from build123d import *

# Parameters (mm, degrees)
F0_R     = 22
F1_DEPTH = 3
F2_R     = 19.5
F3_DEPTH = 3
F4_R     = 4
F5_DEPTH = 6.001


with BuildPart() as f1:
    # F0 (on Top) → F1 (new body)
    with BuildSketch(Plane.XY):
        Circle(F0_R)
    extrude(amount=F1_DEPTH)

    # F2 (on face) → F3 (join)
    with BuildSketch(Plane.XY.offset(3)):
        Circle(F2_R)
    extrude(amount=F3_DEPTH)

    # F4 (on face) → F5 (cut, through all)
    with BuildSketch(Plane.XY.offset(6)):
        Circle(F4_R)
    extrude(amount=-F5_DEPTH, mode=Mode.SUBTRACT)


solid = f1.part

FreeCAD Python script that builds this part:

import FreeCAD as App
import Part
import Sketcher

V = App.Vector

doc = App.newDocument("Part")
body = doc.addObject("PartDesign::Body", "Body")

# Sketch on XY plane
sketch1 = doc.addObject("Sketcher::SketchObject", "Sketch")
body.addObject(sketch1)
sketch1.AttachmentSupport = (doc.XY_Plane, [""])
sketch1.MapMode = "FlatFace"
sketch1.addGeometry(Part.Circle(V(0, 0, 0), V(0, 0, 1), 22), False)
sketch1.addConstraint(Sketcher.Constraint("Coincident", 0, 3, -1, 1))
sketch1.addConstraint(Sketcher.Constraint("Diameter", 0, 44.0))
pad1 = doc.addObject("PartDesign::Pad", "Pad")
body.addObject(pad1)
pad1.Profile = sketch1
pad1.Length = 3

# Sketch on XY plane
sketch2 = doc.addObject("Sketcher::SketchObject", "Sketch001")
body.addObject(sketch2)
sketch2.AttachmentSupport = (doc.XY_Plane, [""])
sketch2.MapMode = "FlatFace"
sketch2.AttachmentOffset = App.Placement(V(0, 0, 3), App.Rotation())
sketch2.addGeometry(Part.Circle(V(0, 0, 0), V(0, 0, 1), 20), False)
sketch2.addConstraint(Sketcher.Constraint("Coincident", 0, 3, -1, 1))
sketch2.addConstraint(Sketcher.Constraint("Diameter", 0, 39.0))
pad2 = doc.addObject("PartDesign::Pad", "Pad001")
body.addObject(pad2)
pad2.Profile = sketch2
pad2.Length = 3

# Sketch on XY plane
sketch3 = doc.addObject("Sketcher::SketchObject", "Sketch002")
body.addObject(sketch3)
sketch3.AttachmentSupport = (doc.XY_Plane, [""])
sketch3.MapMode = "FlatFace"
sketch3.AttachmentOffset = App.Placement(V(0, 0, 6), App.Rotation())
sketch3.addGeometry(Part.Circle(V(0, 0, 0), V(0, 0, 1), 4), False)
sketch3.addConstraint(Sketcher.Constraint("Coincident", 0, 3, -1, 1))
sketch3.addConstraint(Sketcher.Constraint("Diameter", 0, 8.0))
pocket1 = doc.addObject("PartDesign::Pocket", "Pocket")
body.addObject(pocket1)
pocket1.Profile = sketch3
pocket1.Type = "ThroughAll"

doc.recompute()
